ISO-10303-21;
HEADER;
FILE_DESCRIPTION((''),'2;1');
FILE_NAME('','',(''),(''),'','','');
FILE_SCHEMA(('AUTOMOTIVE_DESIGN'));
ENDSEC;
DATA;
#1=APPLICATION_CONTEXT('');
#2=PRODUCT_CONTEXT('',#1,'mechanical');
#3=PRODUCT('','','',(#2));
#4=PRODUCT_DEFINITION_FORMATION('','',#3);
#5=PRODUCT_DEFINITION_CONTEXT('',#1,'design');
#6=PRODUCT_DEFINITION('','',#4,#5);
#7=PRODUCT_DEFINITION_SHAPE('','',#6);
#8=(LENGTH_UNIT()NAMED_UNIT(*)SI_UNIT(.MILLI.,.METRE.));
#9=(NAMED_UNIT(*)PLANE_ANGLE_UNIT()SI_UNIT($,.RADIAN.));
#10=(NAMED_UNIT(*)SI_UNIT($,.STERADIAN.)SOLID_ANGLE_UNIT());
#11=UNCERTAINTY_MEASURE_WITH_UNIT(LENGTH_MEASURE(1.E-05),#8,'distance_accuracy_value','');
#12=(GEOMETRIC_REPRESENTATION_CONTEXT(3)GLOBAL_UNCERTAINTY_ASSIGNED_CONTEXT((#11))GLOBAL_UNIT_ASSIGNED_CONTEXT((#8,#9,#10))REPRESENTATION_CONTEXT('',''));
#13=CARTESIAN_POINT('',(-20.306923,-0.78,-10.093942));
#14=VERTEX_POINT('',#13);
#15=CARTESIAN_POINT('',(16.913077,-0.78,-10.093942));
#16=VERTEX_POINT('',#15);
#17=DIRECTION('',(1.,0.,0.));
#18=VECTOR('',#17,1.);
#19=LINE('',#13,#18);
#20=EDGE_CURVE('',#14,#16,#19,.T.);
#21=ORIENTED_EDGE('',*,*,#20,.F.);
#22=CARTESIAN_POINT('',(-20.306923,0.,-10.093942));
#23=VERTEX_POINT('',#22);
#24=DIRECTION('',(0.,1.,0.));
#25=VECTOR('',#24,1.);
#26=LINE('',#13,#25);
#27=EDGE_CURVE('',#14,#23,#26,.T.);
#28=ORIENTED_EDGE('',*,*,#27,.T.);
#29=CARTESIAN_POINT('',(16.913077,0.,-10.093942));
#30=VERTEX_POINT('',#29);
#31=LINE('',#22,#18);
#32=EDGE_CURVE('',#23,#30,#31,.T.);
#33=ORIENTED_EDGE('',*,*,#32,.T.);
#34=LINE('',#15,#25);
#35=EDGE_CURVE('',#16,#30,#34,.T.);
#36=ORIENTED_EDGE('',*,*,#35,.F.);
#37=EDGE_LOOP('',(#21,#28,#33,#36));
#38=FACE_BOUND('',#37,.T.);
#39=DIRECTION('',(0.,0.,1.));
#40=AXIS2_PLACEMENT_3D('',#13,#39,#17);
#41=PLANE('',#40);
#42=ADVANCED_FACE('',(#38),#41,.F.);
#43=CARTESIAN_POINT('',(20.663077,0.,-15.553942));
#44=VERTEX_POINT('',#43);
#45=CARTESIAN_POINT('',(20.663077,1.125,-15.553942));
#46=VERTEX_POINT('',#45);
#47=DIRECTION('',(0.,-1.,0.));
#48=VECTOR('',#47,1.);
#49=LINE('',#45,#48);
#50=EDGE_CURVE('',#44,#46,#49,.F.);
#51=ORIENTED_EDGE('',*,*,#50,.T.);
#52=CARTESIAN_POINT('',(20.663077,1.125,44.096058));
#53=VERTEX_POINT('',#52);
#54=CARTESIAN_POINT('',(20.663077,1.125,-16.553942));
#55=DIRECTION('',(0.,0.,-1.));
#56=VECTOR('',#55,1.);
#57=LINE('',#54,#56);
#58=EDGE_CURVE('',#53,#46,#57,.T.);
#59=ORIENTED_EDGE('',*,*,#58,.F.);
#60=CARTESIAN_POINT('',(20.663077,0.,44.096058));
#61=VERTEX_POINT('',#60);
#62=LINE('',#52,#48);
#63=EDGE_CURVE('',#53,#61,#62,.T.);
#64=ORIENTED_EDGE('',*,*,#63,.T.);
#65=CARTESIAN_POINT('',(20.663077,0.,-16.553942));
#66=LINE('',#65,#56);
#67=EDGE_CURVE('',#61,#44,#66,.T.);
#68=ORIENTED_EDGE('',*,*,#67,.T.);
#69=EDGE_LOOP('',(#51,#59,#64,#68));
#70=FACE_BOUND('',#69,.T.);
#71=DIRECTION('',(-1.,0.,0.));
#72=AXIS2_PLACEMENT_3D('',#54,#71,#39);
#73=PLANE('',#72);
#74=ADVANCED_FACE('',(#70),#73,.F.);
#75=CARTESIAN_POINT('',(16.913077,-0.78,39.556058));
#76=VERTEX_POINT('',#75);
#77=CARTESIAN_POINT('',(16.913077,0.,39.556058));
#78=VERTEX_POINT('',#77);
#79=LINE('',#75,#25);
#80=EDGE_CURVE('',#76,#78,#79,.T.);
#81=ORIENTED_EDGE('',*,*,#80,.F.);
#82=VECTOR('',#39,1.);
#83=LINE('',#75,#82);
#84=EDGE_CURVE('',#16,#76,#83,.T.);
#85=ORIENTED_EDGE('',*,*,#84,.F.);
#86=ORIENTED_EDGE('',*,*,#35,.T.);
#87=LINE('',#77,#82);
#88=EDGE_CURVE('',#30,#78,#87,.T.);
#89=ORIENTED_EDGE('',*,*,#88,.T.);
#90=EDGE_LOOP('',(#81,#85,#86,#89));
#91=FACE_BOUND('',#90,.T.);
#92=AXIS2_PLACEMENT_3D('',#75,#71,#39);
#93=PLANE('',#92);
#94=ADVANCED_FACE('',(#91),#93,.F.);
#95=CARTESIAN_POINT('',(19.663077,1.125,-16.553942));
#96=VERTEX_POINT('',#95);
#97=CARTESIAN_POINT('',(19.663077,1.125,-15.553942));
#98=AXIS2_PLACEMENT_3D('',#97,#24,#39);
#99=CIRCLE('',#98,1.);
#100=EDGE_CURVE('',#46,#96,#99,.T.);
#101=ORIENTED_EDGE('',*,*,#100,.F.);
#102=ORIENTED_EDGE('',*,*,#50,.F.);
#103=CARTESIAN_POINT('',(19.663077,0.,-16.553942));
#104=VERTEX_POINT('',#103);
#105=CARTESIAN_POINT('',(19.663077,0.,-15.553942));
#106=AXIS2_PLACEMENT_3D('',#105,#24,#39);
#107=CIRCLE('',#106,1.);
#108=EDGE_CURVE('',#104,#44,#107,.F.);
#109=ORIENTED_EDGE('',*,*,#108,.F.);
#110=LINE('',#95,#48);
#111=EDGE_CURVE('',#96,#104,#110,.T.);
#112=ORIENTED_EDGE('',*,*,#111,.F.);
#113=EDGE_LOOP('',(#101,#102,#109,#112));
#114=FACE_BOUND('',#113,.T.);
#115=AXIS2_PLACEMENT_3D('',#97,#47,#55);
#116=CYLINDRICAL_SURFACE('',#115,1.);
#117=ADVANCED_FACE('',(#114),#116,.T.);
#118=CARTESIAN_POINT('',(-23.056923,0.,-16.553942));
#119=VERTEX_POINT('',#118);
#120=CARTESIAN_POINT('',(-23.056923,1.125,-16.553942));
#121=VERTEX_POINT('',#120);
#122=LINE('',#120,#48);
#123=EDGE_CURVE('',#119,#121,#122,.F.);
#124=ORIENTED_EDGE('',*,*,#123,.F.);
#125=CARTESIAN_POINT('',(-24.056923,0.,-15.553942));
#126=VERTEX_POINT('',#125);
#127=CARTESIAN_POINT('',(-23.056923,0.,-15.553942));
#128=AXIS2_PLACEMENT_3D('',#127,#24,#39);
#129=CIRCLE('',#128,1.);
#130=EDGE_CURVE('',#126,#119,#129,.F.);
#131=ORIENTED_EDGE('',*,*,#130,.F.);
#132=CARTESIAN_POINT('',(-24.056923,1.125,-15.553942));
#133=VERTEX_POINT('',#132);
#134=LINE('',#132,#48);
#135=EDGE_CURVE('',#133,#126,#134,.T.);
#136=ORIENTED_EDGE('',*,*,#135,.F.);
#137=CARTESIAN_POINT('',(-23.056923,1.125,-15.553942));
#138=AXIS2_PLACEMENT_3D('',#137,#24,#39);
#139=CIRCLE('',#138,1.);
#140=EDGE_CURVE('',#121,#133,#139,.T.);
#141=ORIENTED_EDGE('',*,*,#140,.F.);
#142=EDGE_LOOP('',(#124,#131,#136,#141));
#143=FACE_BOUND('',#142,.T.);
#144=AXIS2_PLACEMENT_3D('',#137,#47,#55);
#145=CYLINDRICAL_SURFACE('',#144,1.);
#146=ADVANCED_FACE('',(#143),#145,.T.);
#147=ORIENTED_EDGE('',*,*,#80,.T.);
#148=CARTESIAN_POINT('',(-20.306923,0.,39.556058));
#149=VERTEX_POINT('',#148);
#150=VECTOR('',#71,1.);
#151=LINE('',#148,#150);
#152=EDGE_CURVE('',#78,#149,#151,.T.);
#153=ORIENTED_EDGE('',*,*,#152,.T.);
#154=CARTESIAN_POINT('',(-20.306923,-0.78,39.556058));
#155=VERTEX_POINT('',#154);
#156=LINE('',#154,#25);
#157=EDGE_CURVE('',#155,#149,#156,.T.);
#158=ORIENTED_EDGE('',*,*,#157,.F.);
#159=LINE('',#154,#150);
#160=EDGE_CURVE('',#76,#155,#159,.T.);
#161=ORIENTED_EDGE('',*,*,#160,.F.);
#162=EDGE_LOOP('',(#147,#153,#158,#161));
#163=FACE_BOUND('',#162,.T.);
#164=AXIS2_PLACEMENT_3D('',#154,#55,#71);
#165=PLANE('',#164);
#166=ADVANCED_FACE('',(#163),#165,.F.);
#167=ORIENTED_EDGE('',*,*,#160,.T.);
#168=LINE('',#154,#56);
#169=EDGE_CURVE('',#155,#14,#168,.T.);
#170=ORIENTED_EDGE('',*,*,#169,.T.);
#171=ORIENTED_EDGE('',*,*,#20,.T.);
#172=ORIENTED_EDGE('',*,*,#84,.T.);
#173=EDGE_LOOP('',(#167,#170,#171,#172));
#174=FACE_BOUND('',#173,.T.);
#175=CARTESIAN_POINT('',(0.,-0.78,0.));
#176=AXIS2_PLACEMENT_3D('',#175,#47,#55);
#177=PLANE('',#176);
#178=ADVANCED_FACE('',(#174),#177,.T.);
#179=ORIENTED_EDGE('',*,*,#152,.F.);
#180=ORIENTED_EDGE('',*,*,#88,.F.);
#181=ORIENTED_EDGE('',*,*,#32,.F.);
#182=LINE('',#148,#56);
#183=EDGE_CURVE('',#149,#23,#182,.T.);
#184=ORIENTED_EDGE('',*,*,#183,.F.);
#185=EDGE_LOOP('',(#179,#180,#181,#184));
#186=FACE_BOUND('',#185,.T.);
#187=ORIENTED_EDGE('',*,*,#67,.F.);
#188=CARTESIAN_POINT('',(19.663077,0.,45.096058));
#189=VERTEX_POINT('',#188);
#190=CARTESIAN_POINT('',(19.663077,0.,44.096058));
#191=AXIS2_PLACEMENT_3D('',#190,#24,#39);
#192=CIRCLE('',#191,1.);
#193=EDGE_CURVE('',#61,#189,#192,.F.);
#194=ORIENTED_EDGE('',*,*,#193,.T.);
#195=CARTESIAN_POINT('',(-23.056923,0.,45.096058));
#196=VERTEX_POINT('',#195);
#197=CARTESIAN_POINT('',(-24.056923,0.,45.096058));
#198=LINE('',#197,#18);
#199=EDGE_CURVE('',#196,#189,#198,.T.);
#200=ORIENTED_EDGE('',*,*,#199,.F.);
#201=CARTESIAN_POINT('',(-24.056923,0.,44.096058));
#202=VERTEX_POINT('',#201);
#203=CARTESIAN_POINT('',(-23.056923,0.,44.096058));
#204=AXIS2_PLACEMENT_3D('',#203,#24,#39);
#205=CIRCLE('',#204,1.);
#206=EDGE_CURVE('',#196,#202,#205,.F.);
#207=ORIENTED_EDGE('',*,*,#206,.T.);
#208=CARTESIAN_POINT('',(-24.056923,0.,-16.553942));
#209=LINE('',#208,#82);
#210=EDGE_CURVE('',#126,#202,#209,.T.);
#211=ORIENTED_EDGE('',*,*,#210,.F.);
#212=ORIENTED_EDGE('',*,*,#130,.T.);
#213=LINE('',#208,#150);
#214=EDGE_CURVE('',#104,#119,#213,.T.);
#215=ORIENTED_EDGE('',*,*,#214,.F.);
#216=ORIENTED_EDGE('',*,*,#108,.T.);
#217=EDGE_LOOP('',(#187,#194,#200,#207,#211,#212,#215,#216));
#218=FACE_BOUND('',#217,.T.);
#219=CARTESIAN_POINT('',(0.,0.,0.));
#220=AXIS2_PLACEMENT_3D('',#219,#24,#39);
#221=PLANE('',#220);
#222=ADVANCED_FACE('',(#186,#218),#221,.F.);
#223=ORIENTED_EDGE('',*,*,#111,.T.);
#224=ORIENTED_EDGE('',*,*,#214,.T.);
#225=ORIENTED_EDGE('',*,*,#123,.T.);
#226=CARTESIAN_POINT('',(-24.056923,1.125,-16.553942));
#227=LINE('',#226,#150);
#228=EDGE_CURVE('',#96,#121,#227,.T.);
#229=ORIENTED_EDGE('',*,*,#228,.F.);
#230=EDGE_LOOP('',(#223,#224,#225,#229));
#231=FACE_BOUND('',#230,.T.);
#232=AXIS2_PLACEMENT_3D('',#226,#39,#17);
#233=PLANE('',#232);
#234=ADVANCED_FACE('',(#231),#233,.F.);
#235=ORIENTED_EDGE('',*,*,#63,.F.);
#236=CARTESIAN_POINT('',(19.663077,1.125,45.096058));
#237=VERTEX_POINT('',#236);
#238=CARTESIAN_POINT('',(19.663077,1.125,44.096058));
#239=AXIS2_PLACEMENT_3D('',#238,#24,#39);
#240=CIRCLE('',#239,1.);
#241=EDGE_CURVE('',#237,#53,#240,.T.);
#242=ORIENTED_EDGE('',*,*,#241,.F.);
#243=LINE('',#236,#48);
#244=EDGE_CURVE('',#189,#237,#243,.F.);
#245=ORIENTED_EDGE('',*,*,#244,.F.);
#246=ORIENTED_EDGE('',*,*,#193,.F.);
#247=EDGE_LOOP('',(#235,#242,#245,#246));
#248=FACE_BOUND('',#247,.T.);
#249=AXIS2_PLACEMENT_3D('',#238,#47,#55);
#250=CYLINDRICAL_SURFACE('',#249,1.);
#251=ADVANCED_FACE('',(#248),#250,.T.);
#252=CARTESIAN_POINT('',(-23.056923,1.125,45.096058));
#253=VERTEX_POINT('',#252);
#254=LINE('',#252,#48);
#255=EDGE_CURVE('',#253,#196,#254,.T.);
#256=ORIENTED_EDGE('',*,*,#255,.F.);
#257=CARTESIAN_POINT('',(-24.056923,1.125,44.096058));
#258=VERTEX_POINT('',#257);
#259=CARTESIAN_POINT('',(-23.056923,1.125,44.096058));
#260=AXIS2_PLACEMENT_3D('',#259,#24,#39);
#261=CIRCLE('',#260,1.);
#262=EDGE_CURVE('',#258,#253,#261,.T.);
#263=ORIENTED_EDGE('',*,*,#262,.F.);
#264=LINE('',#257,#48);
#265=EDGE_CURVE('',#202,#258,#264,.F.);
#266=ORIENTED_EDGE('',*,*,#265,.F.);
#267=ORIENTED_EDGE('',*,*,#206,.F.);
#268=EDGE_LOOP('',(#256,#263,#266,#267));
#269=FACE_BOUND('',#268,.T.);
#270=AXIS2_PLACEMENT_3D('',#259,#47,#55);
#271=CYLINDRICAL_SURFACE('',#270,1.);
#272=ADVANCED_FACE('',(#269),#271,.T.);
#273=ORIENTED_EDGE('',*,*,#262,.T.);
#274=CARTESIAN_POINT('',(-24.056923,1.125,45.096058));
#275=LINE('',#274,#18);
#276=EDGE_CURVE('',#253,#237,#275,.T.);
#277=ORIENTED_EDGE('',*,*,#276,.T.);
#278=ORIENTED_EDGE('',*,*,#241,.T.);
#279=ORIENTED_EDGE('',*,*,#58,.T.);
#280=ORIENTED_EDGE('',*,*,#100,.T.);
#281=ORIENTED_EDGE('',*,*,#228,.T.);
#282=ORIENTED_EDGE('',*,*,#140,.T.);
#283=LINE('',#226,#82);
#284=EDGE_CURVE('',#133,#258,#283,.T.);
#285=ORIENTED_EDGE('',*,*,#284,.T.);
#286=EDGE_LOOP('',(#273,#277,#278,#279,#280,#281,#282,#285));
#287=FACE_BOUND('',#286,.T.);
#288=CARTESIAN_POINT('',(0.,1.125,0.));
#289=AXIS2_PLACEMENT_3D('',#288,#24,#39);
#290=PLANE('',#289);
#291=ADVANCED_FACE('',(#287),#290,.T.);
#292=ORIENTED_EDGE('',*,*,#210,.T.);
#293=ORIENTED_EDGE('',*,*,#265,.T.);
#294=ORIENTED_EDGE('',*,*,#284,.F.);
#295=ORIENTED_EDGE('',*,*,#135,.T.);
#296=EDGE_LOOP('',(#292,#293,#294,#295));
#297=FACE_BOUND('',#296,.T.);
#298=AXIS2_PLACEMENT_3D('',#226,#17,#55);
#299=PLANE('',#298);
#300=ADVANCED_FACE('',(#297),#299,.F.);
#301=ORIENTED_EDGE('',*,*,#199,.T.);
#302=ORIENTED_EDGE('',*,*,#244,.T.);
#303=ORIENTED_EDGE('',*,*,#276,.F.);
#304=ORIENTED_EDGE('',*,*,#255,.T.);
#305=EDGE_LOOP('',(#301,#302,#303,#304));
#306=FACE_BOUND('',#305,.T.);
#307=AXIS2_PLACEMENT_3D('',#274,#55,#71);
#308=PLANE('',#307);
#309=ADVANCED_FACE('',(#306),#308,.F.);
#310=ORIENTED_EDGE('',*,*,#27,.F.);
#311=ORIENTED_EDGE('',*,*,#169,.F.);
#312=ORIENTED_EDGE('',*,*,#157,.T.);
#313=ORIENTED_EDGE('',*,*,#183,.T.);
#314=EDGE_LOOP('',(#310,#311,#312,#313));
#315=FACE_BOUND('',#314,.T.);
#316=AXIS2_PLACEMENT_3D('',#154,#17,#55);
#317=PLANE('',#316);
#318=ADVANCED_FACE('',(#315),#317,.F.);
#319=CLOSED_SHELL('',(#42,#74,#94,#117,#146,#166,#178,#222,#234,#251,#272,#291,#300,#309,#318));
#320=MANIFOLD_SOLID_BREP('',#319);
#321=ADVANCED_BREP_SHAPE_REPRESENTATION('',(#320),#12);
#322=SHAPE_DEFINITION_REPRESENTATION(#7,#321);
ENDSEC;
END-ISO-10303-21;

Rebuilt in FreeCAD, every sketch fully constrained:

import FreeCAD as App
import Part
import Sketcher
Q = App.Units.Quantity


def edges_at(feature, points):
    """Names of the edges that pass closest to the given points."""
    edges = feature.Shape.Edges
    near = lambda p: min(range(len(edges)), key=lambda i: edges[i].distToShape(Part.Vertex(*p))[0])
    return sorted({f"Edge{near(p) + 1}" for p in points})

doc = App.newDocument("Part")
params = doc.addObject("Spreadsheet::Sheet", "Params")
for row, (alias, value) in enumerate([
    ("sketch1_width", "44.72 mm"),
    ("sketch1_height", "61.65 mm"),
    ("pad1_length", "1.125 mm"),
    ("fillet_radius", "1 mm"),
    ("sketch2_width", "37.22 mm"),
    ("sketch2_height", "49.65 mm"),
    ("pad2_length", "0.78 mm"),
], start=1):
    params.set(f"A{row}", alias)
    params.set(f"B{row}", "=" + value)
    params.setAlias(f"B{row}", alias)

body = doc.addObject("PartDesign::Body", "Body")

# Sketch on XZ plane
sketch1 = body.newObject("Sketcher::SketchObject", "Sketch")
sketch1.AttachmentSupport = (doc.getObject("XZ_Plane"), [""])
sketch1.MapMode = "FlatFace"
sketch1.addGeometry([
    Part.LineSegment(App.Vector(-24.056923, -16.553942, 0), App.Vector(-24.056923, 45.096058, 0)),
    Part.LineSegment(App.Vector(-24.056923, 45.096058, 0), App.Vector(20.663077, 45.096058, 0)),
    Part.LineSegment(App.Vector(20.663077, 45.096058, 0), App.Vector(20.663077, -16.553942, 0)),
    Part.LineSegment(App.Vector(20.663077, -16.553942, 0), App.Vector(-24.056923, -16.553942, 0)),
], False)
sketch1.addConstraint([
    Sketcher.Constraint("Coincident", 0, 2, 1, 1),
    Sketcher.Constraint("Coincident", 1, 2, 2, 1),
    Sketcher.Constraint("Coincident", 2, 2, 3, 1),
    Sketcher.Constraint("Coincident", 3, 2, 0, 1),
    Sketcher.Constraint("Vertical", 0),
    Sketcher.Constraint("Horizontal", 1),
    Sketcher.Constraint("Vertical", 2),
    Sketcher.Constraint("Horizontal", 3),
    Sketcher.Constraint("DistanceX", 1, 1, 1, 2, Q("44.72 mm")),
    Sketcher.Constraint("DistanceY", 0, 1, 0, 2, Q("61.65 mm")),
    Sketcher.Constraint("DistanceX", 0, 2, -1, 1, Q("24.056923 mm")),
    Sketcher.Constraint("DistanceY", -1, 1, 0, 2, Q("45.096058 mm")),
])
sketch1.setExpression("Constraints[8]", "Params.sketch1_width")
sketch1.setExpression("Constraints[9]", "Params.sketch1_height")
pad1 = body.newObject("PartDesign::Pad", "Pad")
pad1.Profile = sketch1
pad1.setExpression("Length", "Params.pad1_length")
pad1.Reversed = True
doc.recompute()

fillet = body.newObject("PartDesign::Fillet", "Fillet")
fillet.Base = (pad1, edges_at(pad1, [
    (-24.057, 0.562, -16.554),
    (20.663, 0.562, -16.554),
    (20.663, 0.562, 45.096),
    (-24.057, 0.562, 45.096),
]))
fillet.setExpression("Radius", "Params.fillet_radius")

# Sketch on XZ plane
sketch2 = body.newObject("Sketcher::SketchObject", "Sketch001")
sketch2.AttachmentSupport = (doc.getObject("XZ_Plane"), [""])
sketch2.MapMode = "FlatFace"
sketch2.addGeometry([
    Part.LineSegment(App.Vector(-20.306923, 39.556058, 0), App.Vector(-20.306923, -10.093942, 0)),
    Part.LineSegment(App.Vector(-20.306923, -10.093942, 0), App.Vector(16.913077, -10.093942, 0)),
    Part.LineSegment(App.Vector(16.913077, -10.093942, 0), App.Vector(16.913077, 39.556058, 0)),
    Part.LineSegment(App.Vector(16.913077, 39.556058, 0), App.Vector(-20.306923, 39.556058, 0)),
], False)
sketch2.addConstraint([
    Sketcher.Constraint("Coincident", 0, 2, 1, 1),
    Sketcher.Constraint("Coincident", 1, 2, 2, 1),
    Sketcher.Constraint("Coincident", 2, 2, 3, 1),
    Sketcher.Constraint("Coincident", 3, 2, 0, 1),
    Sketcher.Constraint("Vertical", 0),
    Sketcher.Constraint("Horizontal", 1),
    Sketcher.Constraint("Vertical", 2),
    Sketcher.Constraint("Horizontal", 3),
    Sketcher.Constraint("DistanceX", 1, 1, 1, 2, Q("37.22 mm")),
    Sketcher.Constraint("DistanceY", 0, 2, 0, 1, Q("49.65 mm")),
    Sketcher.Constraint("DistanceX", 0, 2, -1, 1, Q("20.306923 mm")),
    Sketcher.Constraint("DistanceY", 0, 2, -1, 1, Q("10.093942 mm")),
])
sketch2.setExpression("Constraints[8]", "Params.sketch2_width")
sketch2.setExpression("Constraints[9]", "Params.sketch2_height")
pad2 = body.newObject("PartDesign::Pad", "Pad001")
pad2.Profile = sketch2
pad2.setExpression("Length", "Params.pad2_length")

doc.recompute()
